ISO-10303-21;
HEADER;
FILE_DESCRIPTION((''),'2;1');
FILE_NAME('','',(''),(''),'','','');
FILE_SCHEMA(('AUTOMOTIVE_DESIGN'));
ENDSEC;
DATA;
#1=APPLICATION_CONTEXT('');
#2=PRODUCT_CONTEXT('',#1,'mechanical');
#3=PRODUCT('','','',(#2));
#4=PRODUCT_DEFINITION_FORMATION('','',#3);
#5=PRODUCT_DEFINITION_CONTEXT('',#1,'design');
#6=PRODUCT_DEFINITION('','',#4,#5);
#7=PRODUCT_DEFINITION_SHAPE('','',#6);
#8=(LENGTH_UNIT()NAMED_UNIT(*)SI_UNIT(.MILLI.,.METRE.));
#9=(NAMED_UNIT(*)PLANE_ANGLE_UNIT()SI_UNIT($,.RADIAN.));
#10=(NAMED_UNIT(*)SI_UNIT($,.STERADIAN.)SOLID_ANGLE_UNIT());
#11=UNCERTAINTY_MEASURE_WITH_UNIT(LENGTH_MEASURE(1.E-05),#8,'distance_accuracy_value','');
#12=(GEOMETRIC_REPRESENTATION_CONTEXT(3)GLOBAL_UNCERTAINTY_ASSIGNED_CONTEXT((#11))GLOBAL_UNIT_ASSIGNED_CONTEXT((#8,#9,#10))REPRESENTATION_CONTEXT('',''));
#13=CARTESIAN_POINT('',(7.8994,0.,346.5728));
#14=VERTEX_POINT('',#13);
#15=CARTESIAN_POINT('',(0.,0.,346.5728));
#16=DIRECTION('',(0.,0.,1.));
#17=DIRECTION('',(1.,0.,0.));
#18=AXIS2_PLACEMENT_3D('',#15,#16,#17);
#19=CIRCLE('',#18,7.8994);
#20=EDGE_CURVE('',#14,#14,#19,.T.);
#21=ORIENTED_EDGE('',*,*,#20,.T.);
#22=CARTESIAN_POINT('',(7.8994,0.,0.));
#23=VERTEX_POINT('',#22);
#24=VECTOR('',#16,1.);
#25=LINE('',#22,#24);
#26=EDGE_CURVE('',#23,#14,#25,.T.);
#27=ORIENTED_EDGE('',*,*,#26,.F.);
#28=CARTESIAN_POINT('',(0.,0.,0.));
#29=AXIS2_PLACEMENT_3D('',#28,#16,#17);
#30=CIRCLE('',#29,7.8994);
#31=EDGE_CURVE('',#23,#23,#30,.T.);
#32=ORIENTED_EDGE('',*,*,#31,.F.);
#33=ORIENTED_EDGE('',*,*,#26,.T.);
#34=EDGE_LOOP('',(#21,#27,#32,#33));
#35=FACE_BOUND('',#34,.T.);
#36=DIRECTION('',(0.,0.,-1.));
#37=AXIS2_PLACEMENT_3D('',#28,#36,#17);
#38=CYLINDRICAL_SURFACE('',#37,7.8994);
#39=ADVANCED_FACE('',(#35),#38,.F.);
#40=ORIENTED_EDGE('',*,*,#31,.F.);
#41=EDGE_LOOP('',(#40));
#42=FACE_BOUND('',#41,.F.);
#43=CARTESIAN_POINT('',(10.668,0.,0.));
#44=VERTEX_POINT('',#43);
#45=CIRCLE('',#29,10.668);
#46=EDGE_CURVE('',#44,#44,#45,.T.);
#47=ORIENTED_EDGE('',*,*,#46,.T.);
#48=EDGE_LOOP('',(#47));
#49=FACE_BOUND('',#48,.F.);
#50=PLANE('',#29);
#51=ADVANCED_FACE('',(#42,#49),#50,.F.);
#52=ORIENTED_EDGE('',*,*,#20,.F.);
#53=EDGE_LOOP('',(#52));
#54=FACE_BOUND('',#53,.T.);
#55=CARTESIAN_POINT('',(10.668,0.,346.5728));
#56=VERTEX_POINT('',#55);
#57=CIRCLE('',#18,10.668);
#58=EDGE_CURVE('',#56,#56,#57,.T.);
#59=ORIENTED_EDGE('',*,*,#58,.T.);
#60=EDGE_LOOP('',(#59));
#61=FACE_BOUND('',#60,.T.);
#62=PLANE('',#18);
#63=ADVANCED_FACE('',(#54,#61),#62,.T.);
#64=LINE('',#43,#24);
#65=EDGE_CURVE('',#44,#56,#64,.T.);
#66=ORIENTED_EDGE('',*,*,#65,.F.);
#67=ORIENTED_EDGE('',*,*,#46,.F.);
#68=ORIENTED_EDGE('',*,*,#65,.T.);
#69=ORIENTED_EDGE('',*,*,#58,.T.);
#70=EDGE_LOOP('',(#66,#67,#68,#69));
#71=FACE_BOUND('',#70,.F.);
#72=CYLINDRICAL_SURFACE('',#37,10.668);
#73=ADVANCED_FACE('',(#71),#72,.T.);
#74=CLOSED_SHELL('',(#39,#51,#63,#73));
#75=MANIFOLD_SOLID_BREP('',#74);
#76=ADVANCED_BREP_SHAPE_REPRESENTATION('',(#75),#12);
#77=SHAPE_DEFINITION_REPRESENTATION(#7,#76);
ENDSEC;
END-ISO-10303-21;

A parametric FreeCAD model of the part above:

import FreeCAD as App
import Part
import Sketcher
Q = App.Units.Quantity

doc = App.newDocument("Part")
body = doc.addObject("PartDesign::Body", "Body")

sketch1 = body.newObject("Sketcher::SketchObject", "Sketch")
sketch1.AttachmentSupport = (doc.getObject("XY_Plane"), [""])
sketch1.MapMode = "FlatFace"
sketch1.addGeometry([
    Part.Circle(App.Vector(0, 0, 0), App.Vector(0, 0, 1), 10.668),
    Part.Circle(App.Vector(0, 0, 0), App.Vector(0, 0, 1), 7.8994),
], False)
sketch1.addConstraint([
    Sketcher.Constraint("Coincident", 0, 3, -1, 1),
    Sketcher.Constraint("Coincident", 1, 3, -1, 1),
    Sketcher.Constraint("Diameter", 0, Q("0.84 in")),
    Sketcher.Constraint("Diameter", 1, Q("0.622 in")),
])
pad1 = body.newObject("PartDesign::Pad", "Pad")
pad1.Profile = sketch1
pad1.Length = Q("13.6445984 in")

doc.recompute()
